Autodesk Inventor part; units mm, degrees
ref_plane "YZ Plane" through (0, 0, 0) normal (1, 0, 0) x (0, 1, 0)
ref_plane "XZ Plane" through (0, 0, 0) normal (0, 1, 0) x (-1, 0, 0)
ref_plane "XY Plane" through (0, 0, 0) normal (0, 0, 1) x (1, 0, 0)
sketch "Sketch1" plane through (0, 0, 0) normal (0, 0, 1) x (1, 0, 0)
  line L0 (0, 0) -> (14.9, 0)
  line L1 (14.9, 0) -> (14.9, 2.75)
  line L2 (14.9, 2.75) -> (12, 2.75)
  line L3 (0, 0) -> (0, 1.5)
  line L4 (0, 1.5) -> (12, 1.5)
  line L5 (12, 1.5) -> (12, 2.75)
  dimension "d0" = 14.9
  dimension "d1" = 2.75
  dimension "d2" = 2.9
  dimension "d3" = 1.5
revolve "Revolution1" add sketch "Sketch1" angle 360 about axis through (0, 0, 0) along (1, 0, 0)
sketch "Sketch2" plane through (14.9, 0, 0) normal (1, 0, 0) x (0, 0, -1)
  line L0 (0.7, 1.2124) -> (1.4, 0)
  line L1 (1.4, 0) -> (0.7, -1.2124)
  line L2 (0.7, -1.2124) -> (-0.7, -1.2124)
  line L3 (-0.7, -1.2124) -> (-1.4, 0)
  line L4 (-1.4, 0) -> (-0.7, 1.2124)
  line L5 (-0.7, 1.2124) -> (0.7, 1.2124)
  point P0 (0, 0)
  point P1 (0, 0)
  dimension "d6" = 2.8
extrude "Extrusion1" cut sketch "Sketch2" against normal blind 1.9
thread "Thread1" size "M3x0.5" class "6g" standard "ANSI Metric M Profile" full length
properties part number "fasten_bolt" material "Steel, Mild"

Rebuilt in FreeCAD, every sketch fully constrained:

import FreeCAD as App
import Part
import Sketcher
Q = App.Units.Quantity


def add_polygon(sketch, points):
    """Adds a closed chain of lines whose ends are joined by coincident constraints."""
    first, n = sketch.GeometryCount, len(points)
    for a, b in zip(points, points[1:] + points[:1]):
        sketch.addGeometry(Part.LineSegment(App.Vector(*a, 0), App.Vector(*b, 0)), False)
    for i in range(n):
        sketch.addConstraint(Sketcher.Constraint("Coincident", first + i, 2, first + (i + 1) % n, 1))

doc = App.newDocument("Part")
body = doc.addObject("PartDesign::Body", "Body")

sketch1 = body.newObject("Sketcher::SketchObject", "Sketch")
sketch1.AttachmentSupport = (doc.getObject("XY_Plane"), [""])
sketch1.MapMode = "FlatFace"
add_polygon(sketch1, [(0, 1.5), (0, 0), (14.9, 0), (14.9, 2.8), (12, 2.8), (12, 1.5)])
sketch1.addConstraint([
    Sketcher.Constraint("Vertical", 0),
    Sketcher.Constraint("Horizontal", 1),
    Sketcher.Constraint("Vertical", 2),
    Sketcher.Constraint("Horizontal", 3),
    Sketcher.Constraint("Vertical", 4),
    Sketcher.Constraint("Horizontal", 5),
    Sketcher.Constraint("Coincident", 0, 2, -1, 1),
    Sketcher.Constraint("DistanceX", 1, 1, 1, 2, Q("14.9 mm")),
    Sketcher.Constraint("DistanceX", 3, 2, 3, 1, Q("2.9 mm")),
    Sketcher.Constraint("DistanceY", 0, 2, 0, 1, Q("1.5 mm")),
    Sketcher.Constraint("DistanceY", 2, 1, 2, 2, Q("2.75 mm")),
])
revolution = body.newObject("PartDesign::Revolution", "Revolution")
revolution.Profile = sketch1
revolution.ReferenceAxis = (sketch1, ["H_Axis"])
revolution.Angle = 360

sketch2 = body.newObject("Sketcher::SketchObject", "Sketch001")
sketch2.AttachmentSupport = (doc.getObject("YZ_Plane"), [""])
sketch2.MapMode = "FlatFace"
sketch2.AttachmentOffset = App.Placement(App.Vector(0, 0, 14.9), App.Rotation())
add_polygon(sketch2, [(0, -1.4), (1.2, -0.7), (1.2, 0.7), (0, 1.4), (-1.2, 0.7), (-1.2, -0.7)])
sketch2.addConstraint([
    Sketcher.Constraint("Vertical", 1),
    Sketcher.Constraint("Vertical", 4),
    Sketcher.Constraint("Symmetric", 0, 2, 3, 2, -1, 1),
    Sketcher.Constraint("Symmetric", 2, 2, 5, 2, -1, 1),
    Sketcher.Constraint("PointOnObject", 2, 2, -2),
    Sketcher.Constraint("Parallel", 2, 5),
    Sketcher.Constraint("Horizontal", 1, 2, 3, 2),
    Sketcher.Constraint("DistanceY", 5, 2, 2, 2, Q("2.8 mm")),
    Sketcher.Constraint("Angle", 0, Q("30.0007 deg")),
    Sketcher.Constraint("DistanceY", 1, 1, 1, 2, Q("1.4 mm")),
])
pocket1 = body.newObject("PartDesign::Pocket", "Pocket")
pocket1.Profile = sketch2
pocket1.Length = 1.9

doc.recompute()
